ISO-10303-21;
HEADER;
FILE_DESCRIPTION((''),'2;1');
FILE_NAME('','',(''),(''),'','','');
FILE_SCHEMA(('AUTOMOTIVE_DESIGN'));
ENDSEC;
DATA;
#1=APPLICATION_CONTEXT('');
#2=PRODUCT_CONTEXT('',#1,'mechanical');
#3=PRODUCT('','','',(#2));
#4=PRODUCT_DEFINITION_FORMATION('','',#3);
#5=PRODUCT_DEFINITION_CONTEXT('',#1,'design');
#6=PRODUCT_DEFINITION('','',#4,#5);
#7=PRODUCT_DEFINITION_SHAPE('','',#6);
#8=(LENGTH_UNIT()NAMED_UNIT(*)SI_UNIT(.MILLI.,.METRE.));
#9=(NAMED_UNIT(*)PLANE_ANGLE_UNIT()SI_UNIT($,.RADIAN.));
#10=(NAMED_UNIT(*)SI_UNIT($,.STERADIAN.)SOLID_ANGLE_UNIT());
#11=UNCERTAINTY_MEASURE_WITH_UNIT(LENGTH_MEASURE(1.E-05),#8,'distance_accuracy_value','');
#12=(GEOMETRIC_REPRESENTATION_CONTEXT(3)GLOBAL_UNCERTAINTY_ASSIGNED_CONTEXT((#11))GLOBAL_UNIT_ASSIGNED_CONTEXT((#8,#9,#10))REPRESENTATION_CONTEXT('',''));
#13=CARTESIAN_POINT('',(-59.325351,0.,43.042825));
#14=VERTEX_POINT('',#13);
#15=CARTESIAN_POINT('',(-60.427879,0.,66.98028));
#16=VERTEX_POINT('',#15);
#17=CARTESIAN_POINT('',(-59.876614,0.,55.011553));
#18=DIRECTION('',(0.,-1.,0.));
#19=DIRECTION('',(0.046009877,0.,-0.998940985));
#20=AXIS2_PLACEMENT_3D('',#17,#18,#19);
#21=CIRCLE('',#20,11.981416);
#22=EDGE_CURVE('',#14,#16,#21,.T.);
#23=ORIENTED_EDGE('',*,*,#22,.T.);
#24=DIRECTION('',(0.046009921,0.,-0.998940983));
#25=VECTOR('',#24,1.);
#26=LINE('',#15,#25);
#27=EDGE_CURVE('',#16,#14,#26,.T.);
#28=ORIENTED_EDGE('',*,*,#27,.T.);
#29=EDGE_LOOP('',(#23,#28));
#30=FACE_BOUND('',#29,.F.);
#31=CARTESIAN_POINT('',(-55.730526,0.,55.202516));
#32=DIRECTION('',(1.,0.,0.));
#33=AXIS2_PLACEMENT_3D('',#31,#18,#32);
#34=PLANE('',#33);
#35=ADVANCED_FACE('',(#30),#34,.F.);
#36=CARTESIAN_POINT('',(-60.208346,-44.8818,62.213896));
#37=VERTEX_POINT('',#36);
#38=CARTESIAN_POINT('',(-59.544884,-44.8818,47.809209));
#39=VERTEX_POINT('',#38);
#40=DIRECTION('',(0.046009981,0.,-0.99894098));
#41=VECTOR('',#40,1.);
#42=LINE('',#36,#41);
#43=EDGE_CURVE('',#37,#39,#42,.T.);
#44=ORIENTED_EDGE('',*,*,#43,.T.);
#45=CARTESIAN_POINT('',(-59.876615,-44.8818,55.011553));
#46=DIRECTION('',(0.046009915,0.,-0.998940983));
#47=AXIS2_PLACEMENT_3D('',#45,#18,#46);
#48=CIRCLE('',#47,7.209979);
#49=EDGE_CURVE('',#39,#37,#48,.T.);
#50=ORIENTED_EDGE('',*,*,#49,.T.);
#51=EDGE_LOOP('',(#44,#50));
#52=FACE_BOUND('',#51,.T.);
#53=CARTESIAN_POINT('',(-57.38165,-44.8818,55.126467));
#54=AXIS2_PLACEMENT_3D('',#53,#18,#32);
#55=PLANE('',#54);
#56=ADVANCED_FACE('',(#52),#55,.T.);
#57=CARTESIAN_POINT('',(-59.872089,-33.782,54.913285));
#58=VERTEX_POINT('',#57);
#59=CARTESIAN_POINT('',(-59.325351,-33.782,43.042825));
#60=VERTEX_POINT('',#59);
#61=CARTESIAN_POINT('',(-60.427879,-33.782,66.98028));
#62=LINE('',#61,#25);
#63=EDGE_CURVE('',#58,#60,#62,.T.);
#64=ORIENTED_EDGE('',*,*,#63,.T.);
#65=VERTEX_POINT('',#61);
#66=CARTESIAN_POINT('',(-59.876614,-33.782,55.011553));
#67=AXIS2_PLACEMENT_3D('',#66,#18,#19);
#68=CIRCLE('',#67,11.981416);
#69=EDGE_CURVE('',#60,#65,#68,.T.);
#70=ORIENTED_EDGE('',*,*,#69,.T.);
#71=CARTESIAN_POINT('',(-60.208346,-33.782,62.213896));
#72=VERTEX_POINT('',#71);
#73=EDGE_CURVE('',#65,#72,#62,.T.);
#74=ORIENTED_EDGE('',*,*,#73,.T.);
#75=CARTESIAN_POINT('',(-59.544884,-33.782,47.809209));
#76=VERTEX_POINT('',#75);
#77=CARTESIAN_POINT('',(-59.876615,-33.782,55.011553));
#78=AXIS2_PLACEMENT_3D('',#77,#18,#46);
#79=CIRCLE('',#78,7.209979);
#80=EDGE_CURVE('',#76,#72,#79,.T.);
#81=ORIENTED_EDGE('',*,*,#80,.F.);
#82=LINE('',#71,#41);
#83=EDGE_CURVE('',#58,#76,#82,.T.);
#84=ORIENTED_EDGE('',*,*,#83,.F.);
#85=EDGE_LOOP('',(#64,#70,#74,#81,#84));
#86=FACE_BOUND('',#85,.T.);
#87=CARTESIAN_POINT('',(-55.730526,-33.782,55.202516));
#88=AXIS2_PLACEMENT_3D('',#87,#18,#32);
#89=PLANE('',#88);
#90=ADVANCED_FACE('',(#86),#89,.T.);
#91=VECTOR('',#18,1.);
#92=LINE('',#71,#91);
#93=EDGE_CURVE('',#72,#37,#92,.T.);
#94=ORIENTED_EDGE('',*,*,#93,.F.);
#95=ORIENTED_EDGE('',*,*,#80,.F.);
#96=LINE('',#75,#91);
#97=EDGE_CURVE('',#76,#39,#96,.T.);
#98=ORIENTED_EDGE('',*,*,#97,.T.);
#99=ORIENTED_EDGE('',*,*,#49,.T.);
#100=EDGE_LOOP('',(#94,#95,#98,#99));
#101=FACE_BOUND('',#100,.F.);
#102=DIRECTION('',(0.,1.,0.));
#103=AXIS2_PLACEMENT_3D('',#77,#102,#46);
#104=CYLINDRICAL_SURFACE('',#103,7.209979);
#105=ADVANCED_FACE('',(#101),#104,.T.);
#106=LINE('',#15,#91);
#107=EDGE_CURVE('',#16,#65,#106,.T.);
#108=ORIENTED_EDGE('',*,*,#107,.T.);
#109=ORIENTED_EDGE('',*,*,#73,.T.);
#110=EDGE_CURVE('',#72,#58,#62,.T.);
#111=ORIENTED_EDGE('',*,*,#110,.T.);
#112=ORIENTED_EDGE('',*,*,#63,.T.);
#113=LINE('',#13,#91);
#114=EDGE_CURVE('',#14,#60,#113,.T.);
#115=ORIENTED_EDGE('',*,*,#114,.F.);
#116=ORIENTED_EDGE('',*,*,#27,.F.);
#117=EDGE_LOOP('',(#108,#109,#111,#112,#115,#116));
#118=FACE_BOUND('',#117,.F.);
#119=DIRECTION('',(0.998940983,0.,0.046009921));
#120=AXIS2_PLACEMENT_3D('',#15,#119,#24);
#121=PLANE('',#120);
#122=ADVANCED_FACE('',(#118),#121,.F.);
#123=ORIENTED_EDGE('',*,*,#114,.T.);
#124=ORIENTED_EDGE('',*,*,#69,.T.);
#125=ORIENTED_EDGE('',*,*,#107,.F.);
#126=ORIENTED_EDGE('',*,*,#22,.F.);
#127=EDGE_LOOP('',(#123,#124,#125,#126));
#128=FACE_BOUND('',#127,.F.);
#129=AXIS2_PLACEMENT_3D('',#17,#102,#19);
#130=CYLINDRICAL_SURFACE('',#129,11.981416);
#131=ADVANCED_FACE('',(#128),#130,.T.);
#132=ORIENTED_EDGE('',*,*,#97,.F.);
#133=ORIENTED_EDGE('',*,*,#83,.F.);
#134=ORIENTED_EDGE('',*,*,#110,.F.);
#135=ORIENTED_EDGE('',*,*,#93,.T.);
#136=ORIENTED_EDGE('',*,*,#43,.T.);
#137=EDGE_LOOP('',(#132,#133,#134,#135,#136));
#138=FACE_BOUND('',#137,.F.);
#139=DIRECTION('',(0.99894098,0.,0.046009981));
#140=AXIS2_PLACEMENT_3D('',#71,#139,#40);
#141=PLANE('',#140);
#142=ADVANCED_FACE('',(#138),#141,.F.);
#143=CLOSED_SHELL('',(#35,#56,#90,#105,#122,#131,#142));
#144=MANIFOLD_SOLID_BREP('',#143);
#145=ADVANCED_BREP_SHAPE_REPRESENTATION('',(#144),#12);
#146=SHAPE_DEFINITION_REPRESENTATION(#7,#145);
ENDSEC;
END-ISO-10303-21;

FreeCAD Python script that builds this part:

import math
import FreeCAD as App
import Part
import Sketcher

V = App.Vector
Q = App.Units.Quantity

doc = App.newDocument("Part")
body = doc.addObject("PartDesign::Body", "Body")

# Sketch on XZ plane
sketch1 = doc.addObject("Sketcher::SketchObject", "Sketch")
body.addObject(sketch1)
sketch1.AttachmentSupport = (doc.XZ_Plane, [""])
sketch1.MapMode = "FlatFace"
sketch1.addGeometry([
    Part.LineSegment(V(-60, 67, 0), V(-59, 43, 0)),
    Part.ArcOfCircle(Part.Circle(V(-60, 55, 0), V(0, 0, 1), 12), math.radians(-87), math.radians(93)),
], False)
sketch1.addConstraint([
    Sketcher.Constraint("Coincident", 0, 1, 1, 2),
    Sketcher.Constraint("Coincident", 1, 1, 0, 2),
    Sketcher.Constraint("Radius", 1, 11.981416),
    Sketcher.Constraint("DistanceX", 0, 1, -1, 1, 60.427879),
    Sketcher.Constraint("DistanceY", -1, 1, 0, 1, 66.98028),
    Sketcher.Constraint("DistanceX", 1, 1, -1, 1, 59.325351),
    Sketcher.Constraint("DistanceX", 1, 3, -1, 1, 59.876614),
])
pad1 = doc.addObject("PartDesign::Pad", "Pad")
body.addObject(pad1)
pad1.Profile = sketch1
pad1.Length = Q("1.33 in")

# Sketch on XZ plane
sketch2 = doc.addObject("Sketcher::SketchObject", "Sketch001")
body.addObject(sketch2)
sketch2.AttachmentSupport = (doc.XZ_Plane, [""])
sketch2.MapMode = "FlatFace"
sketch2.AttachmentOffset = App.Placement(V(0, 0, 1.33 * 25.4), App.Rotation())
sketch2.addGeometry([
    Part.LineSegment(V(-60, 62, 0), V(-60, 48, 0)),
    Part.ArcOfCircle(Part.Circle(V(-60, 55, 0), V(0, 0, 1), 7), math.radians(-87), math.radians(93)),
], False)
sketch2.addConstraint([
    Sketcher.Constraint("Coincident", 0, 1, 1, 2),
    Sketcher.Constraint("Coincident", 1, 1, 0, 2),
    Sketcher.Constraint("Radius", 1, 7.209979),
    Sketcher.Constraint("DistanceY", -1, 1, 1, 1, 47.809209),
    Sketcher.Constraint("DistanceX", 0, 1, 1, 3, 0.331731),
    Sketcher.Constraint("DistanceX", 1, 3, 1, 1, 0.331731),
    Sketcher.Constraint("DistanceX", 1, 3, -1, 1, 59.876615),
])
pad2 = doc.addObject("PartDesign::Pad", "Pad001")
body.addObject(pad2)
pad2.Profile = sketch2
pad2.Length = Q("0.437 in")

doc.recompute()
